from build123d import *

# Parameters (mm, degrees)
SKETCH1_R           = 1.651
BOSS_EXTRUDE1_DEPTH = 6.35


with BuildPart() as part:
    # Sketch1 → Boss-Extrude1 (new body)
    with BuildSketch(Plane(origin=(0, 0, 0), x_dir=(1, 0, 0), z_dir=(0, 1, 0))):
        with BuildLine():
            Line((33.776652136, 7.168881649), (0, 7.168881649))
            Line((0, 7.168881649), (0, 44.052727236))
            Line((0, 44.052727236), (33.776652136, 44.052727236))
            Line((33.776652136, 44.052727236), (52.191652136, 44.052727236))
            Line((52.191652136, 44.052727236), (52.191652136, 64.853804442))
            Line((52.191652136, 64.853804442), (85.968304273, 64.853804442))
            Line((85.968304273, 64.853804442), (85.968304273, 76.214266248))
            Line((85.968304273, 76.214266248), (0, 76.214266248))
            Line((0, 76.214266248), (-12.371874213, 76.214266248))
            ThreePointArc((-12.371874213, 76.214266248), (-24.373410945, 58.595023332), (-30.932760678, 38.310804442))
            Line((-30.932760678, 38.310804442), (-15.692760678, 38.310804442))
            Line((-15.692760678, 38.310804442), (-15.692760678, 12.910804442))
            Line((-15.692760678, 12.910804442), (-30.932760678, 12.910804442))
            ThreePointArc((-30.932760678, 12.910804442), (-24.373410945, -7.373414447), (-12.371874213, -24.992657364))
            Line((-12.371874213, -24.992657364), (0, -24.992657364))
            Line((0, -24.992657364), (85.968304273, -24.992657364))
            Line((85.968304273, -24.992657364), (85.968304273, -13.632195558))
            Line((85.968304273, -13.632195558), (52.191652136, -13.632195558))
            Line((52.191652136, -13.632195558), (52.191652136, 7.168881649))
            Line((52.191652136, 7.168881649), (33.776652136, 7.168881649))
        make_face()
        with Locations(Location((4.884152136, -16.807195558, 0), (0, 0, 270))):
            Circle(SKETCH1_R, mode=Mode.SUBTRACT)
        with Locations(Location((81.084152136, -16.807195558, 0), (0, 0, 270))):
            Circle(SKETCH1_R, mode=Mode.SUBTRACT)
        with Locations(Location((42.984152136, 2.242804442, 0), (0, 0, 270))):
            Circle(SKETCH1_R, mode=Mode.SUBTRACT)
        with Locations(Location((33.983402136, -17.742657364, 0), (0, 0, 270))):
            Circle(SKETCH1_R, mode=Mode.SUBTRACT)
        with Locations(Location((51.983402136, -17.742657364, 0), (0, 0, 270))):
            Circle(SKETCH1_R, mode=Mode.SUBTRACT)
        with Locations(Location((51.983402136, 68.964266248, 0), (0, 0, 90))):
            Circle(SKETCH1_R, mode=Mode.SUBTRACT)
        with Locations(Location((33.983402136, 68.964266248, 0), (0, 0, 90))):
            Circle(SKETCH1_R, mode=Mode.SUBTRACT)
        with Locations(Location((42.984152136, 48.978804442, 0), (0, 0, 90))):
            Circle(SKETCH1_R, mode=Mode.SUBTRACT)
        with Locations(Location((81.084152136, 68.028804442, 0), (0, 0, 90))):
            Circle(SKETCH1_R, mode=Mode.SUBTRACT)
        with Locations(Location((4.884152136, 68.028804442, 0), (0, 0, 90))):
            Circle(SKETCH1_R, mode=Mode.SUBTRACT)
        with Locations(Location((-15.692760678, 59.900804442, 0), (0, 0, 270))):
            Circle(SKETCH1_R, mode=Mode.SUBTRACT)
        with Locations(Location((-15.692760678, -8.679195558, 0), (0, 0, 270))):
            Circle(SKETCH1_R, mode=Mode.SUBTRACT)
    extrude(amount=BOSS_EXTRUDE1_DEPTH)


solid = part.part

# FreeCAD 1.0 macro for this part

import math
import FreeCAD as App
import Part
import Sketcher

V = App.Vector
Q = App.Units.Quantity

doc = App.newDocument("Part")
body = doc.addObject("PartDesign::Body", "Body")

sketch1 = doc.addObject("Sketcher::SketchObject", "Sketch")
body.addObject(sketch1)
sketch1.AttachmentSupport = (doc.XZ_Plane, [""])
sketch1.MapMode = "FlatFace"
sketch1.addGeometry(Part.LineSegment(V(0, -7.2, 0), V(0, -44.1, 0)), False)
sketch1.addGeometry(Part.LineSegment(V(0, -44.1, 0), V(52.2, -44.1, 0)), False)
sketch1.addGeometry(Part.LineSegment(V(52.2, -44.1, 0), V(52.2, -64.9, 0)), False)
sketch1.addGeometry(Part.LineSegment(V(52.2, -64.9, 0), V(86, -64.9, 0)), False)
sketch1.addGeometry(Part.LineSegment(V(86, -64.9, 0), V(86, -76.2, 0)), False)
sketch1.addGeometry(Part.LineSegment(V(86, -76.2, 0), V(-12.4, -76.2, 0)), False)
sketch1.addGeometry(Part.ArcOfCircle(Part.Circle(V(43, -25.6, 0), V(0, 0, 1), 75), math.radians(-170), math.radians(-138)), False)
sketch1.addGeometry(Part.LineSegment(V(-30.9, -38.3, 0), V(-15.7, -38.3, 0)), False)
sketch1.addGeometry(Part.LineSegment(V(-15.7, -38.3, 0), V(-15.7, -12.9, 0)), False)
sketch1.addGeometry(Part.LineSegment(V(-15.7, -12.9, 0), V(-30.9, -12.9, 0)), False)
sketch1.addGeometry(Part.ArcOfCircle(Part.Circle(V(43, -25.6, 0), V(0, 0, 1), 75), math.radians(138), math.radians(170)), False)
sketch1.addGeometry(Part.LineSegment(V(-12.4, 25, 0), V(86, 25, 0)), False)
sketch1.addGeometry(Part.LineSegment(V(86, 25, 0), V(86, 13.6, 0)), False)
sketch1.addGeometry(Part.LineSegment(V(86, 13.6, 0), V(52.2, 13.6, 0)), False)
sketch1.addGeometry(Part.LineSegment(V(52.2, 13.6, 0), V(52.2, -7.2, 0)), False)
sketch1.addGeometry(Part.LineSegment(V(52.2, -7.2, 0), V(0, -7.2, 0)), False)
sketch1.addGeometry(Part.Circle(V(-15.7, 8.7, 0), V(0, 0, 1), 1.7), False)
sketch1.addGeometry(Part.Circle(V(4.9, 16.8, 0), V(0, 0, 1), 1.7), False)
sketch1.addGeometry(Part.Circle(V(34, 17.7, 0), V(0, 0, 1), 1.7), False)
sketch1.addGeometry(Part.Circle(V(52, 17.7, 0), V(0, 0, 1), 1.7), False)
sketch1.addGeometry(Part.Circle(V(43, -2.2, 0), V(0, 0, 1), 1.7), False)
sketch1.addGeometry(Part.Circle(V(81.1, 16.8, 0), V(0, 0, 1), 1.7), False)
sketch1.addGeometry(Part.Circle(V(-15.7, -59.9, 0), V(0, 0, 1), 1.7), False)
sketch1.addGeometry(Part.Circle(V(4.9, -68, 0), V(0, 0, 1), 1.7), False)
sketch1.addGeometry(Part.Circle(V(43, -49, 0), V(0, 0, 1), 1.7), False)
sketch1.addGeometry(Part.Circle(V(34, -69, 0), V(0, 0, 1), 1.7), False)
sketch1.addGeometry(Part.Circle(V(52, -69, 0), V(0, 0, 1), 1.7), False)
sketch1.addGeometry(Part.Circle(V(81.1, -68, 0), V(0, 0, 1), 1.7), False)
sketch1.addConstraint(Sketcher.Constraint("Coincident", 0, 2, 1, 1))
sketch1.addConstraint(Sketcher.Constraint("Coincident", 1, 2, 2, 1))
sketch1.addConstraint(Sketcher.Constraint("Coincident", 2, 2, 3, 1))
sketch1.addConstraint(Sketcher.Constraint("Coincident", 3, 2, 4, 1))
sketch1.addConstraint(Sketcher.Constraint("Coincident", 4, 2, 5, 1))
sketch1.addConstraint(Sketcher.Constraint("Coincident", 5, 2, 6, 2))
sketch1.addConstraint(Sketcher.Constraint("Coincident", 6, 1, 7, 1))
sketch1.addConstraint(Sketcher.Constraint("Coincident", 7, 2, 8, 1))
sketch1.addConstraint(Sketcher.Constraint("Coincident", 8, 2, 9, 1))
sketch1.addConstraint(Sketcher.Constraint("Coincident", 9, 2, 10, 2))
sketch1.addConstraint(Sketcher.Constraint("Coincident", 10, 1, 11, 1))
sketch1.addConstraint(Sketcher.Constraint("Coincident", 11, 2, 12, 1))
sketch1.addConstraint(Sketcher.Constraint("Coincident", 12, 2, 13, 1))
sketch1.addConstraint(Sketcher.Constraint("Coincident", 13, 2, 14, 1))
sketch1.addConstraint(Sketcher.Constraint("Coincident", 14, 2, 15, 1))
sketch1.addConstraint(Sketcher.Constraint("Coincident", 15, 2, 0, 1))
sketch1.addConstraint(Sketcher.Constraint("Vertical", 0))
sketch1.addConstraint(Sketcher.Constraint("Horizontal", 1))
sketch1.addConstraint(Sketcher.Constraint("Vertical", 2))
sketch1.addConstraint(Sketcher.Constraint("Horizontal", 3))
sketch1.addConstraint(Sketcher.Constraint("Vertical", 4))
sketch1.addConstraint(Sketcher.Constraint("Horizontal", 5))
sketch1.addConstraint(Sketcher.Constraint("Horizontal", 7))
sketch1.addConstraint(Sketcher.Constraint("Vertical", 8))
sketch1.addConstraint(Sketcher.Constraint("Horizontal", 9))
sketch1.addConstraint(Sketcher.Constraint("Horizontal", 11))
sketch1.addConstraint(Sketcher.Constraint("Vertical", 12))
sketch1.addConstraint(Sketcher.Constraint("Horizontal", 13))
sketch1.addConstraint(Sketcher.Constraint("Vertical", 14))
sketch1.addConstraint(Sketcher.Constraint("Horizontal", 15))
sketch1.addConstraint(Sketcher.Constraint("Coincident", 10, 3, 6, 3))
sketch1.addConstraint(Sketcher.Constraint("Equal", 6, 10))
sketch1.addConstraint(Sketcher.Constraint("Equal", 16, 17))
sketch1.addConstraint(Sketcher.Constraint("Equal", 17, 18))
sketch1.addConstraint(Sketcher.Constraint("Equal", 18, 19))
sketch1.addConstraint(Sketcher.Constraint("Equal", 19, 20))
sketch1.addConstraint(Sketcher.Constraint("Equal", 20, 21))
sketch1.addConstraint(Sketcher.Constraint("Equal", 21, 22))
sketch1.addConstraint(Sketcher.Constraint("Equal", 22, 23))
sketch1.addConstraint(Sketcher.Constraint("Equal", 23, 24))
sketch1.addConstraint(Sketcher.Constraint("Equal", 24, 25))
sketch1.addConstraint(Sketcher.Constraint("Equal", 25, 26))
sketch1.addConstraint(Sketcher.Constraint("Equal", 26, 27))
sketch1.addConstraint(Sketcher.Constraint("PointOnObject", 0, 2, -2))
sketch1.addConstraint(Sketcher.Constraint("Horizontal", 18, 3, 19, 3))
sketch1.addConstraint(Sketcher.Constraint("Horizontal", 17, 3, 21, 3))
sketch1.addConstraint(Sketcher.Constraint("Horizontal", 25, 3, 26, 3))
sketch1.addConstraint(Sketcher.Constraint("Horizontal", 23, 3, 27, 3))
sketch1.addConstraint(Sketcher.Constraint("Vertical", 10, 3, 20, 3))
sketch1.addConstraint(Sketcher.Constraint("Vertical", 16, 3, 22, 3))
sketch1.addConstraint(Sketcher.Constraint("Vertical", 17, 3, 23, 3))
sketch1.addConstraint(Sketcher.Constraint("Vertical", 20, 3, 24, 3))
sketch1.addConstraint(Sketcher.Constraint("Vertical", 18, 3, 25, 3))
sketch1.addConstraint(Sketcher.Constraint("Vertical", 19, 3, 26, 3))
sketch1.addConstraint(Sketcher.Constraint("Vertical", 21, 3, 27, 3))
sketch1.addConstraint(Sketcher.Constraint("Vertical", 22, 3, 7, 2))
sketch1.addConstraint(Sketcher.Constraint("Vertical", 6, 1, 9, 2))
sketch1.addConstraint(Sketcher.Constraint("Vertical", 5, 2, 10, 1))
sketch1.addConstraint(Sketcher.Constraint("Vertical", 4, 2, 11, 2))
sketch1.addConstraint(Sketcher.Constraint("Vertical", 2, 2, 13, 2))
sketch1.addConstraint(Sketcher.Constraint("Equal", 4, 12))
sketch1.addConstraint(Sketcher.Constraint("Equal", 2, 14))
sketch1.addConstraint(Sketcher.Constraint("Diameter", 16, Q("0.13 in")))
sketch1.addConstraint(Sketcher.Constraint("DistanceY", 8, 1, 8, 2, Q("1 in")))
sketch1.addConstraint(Sketcher.Constraint("DistanceX", 7, 1, 7, 2, Q("0.6 in")))
sketch1.addConstraint(Sketcher.Constraint("DistanceX", 17, 3, 6, 3, Q("1.5 in")))
sketch1.addConstraint(Sketcher.Constraint("DistanceX", 20, 3, 21, 3, Q("1.5 in")))
sketch1.addConstraint(Sketcher.Constraint("DistanceY", 22, 3, 16, 3, Q("2.7 in")))
sketch1.addConstraint(Sketcher.Constraint("Radius", 6, Q("75 mm")))
sketch1.addConstraint(Sketcher.Constraint("DistanceY", 6, 3, 16, 3, Q("1.35 in")))
sketch1.addConstraint(Sketcher.Constraint("DistanceY", 16, 3, 17, 3, Q("0.32 in")))
sketch1.addConstraint(Sketcher.Constraint("DistanceY", 10, 3, 20, 3, Q("0.92 in")))
sketch1.addConstraint(Sketcher.Constraint("DistanceY", 23, 3, 22, 3, Q("0.32 in")))
sketch1.addConstraint(Sketcher.Constraint("DistanceY", 24, 3, 6, 3, Q("0.92 in")))
sketch1.addConstraint(Sketcher.Constraint("DistanceY", 2, 2, 24, 3, Q("0.625 in")))
sketch1.addConstraint(Sketcher.Constraint("DistanceX", 24, 3, 1, 2, Q("0.3625 in")))
sketch1.addConstraint(Sketcher.Constraint("DistanceX", 5, 2, 5, 1, Q("98.340178 mm")))
sketch1.addConstraint(Sketcher.Constraint("DistanceY", 4, 2, 4, 1, Q("11.360462 mm")))
sketch1.addConstraint(Sketcher.Constraint("DistanceX", 18, 3, 19, 3, Q("18 mm")))
sketch1.addConstraint(Sketcher.Constraint("DistanceY", 4, 2, 26, 3, Q("7.25 mm")))
sketch1.addConstraint(Sketcher.Constraint("DistanceY", 18, 3, 10, 1, Q("7.25 mm")))
sketch1.addConstraint(Sketcher.Constraint("DistanceX", 1, 1, 1, 2, Q("52.191652 mm")))
sketch1.addConstraint(Sketcher.Constraint("DistanceY", 0, 2, 0, 1, Q("36.883846 mm")))
sketch1.addConstraint(Sketcher.Constraint("DistanceY", 14, 2, -1, 1, Q("7.168882 mm")))
sketch1.addConstraint(Sketcher.Constraint("DistanceX", 17, 3, 18, 3, Q("29.09925 mm")))
pad1 = doc.addObject("PartDesign::Pad", "Pad")
body.addObject(pad1)
pad1.Profile = sketch1
pad1.Length = Q("0.25 in")
pad1.Reversed = True

doc.recompute()
